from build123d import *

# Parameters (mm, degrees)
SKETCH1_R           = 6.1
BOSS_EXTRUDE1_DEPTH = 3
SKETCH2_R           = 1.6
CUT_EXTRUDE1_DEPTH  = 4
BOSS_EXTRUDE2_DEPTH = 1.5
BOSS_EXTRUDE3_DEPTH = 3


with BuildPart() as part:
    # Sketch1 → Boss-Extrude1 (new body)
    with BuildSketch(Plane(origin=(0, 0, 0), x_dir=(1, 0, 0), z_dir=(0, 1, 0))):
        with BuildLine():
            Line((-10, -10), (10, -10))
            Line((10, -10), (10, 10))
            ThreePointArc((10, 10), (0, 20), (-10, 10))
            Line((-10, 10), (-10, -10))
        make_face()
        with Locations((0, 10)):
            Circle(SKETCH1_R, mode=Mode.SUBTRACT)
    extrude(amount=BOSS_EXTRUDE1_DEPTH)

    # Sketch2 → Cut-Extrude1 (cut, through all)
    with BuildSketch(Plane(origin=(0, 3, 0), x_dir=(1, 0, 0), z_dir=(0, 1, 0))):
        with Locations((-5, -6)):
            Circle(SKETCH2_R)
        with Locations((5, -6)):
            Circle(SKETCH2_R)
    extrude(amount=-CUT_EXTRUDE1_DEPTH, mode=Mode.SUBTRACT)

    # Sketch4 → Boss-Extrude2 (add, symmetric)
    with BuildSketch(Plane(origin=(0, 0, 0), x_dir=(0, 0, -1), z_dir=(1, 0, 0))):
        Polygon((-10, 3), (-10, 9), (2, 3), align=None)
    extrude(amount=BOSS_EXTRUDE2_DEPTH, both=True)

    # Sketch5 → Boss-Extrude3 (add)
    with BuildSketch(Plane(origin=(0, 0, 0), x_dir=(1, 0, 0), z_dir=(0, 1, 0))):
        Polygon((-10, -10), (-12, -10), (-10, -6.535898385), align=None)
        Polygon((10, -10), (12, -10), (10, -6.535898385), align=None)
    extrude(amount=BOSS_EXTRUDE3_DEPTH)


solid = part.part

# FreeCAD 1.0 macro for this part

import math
import FreeCAD as App
import Part
import Sketcher
Q = App.Units.Quantity


def add_polygon(sketch, points):
    """Adds a closed chain of lines whose ends are joined by coincident constraints."""
    first, n = sketch.GeometryCount, len(points)
    for a, b in zip(points, points[1:] + points[:1]):
        sketch.addGeometry(Part.LineSegment(App.Vector(*a, 0), App.Vector(*b, 0)), False)
    for i in range(n):
        sketch.addConstraint(Sketcher.Constraint("Coincident", first + i, 2, first + (i + 1) % n, 1))

doc = App.newDocument("Part")
params = doc.addObject("Spreadsheet::Sheet", "Params")
for row, (alias, value) in enumerate([
    ("sketch1_radius", "10 mm"),
    ("sketch1_diameter", "12.2 mm"),
    ("pad1_length", "3 mm"),
    ("sketch2_diameter", "3.2 mm"),
    ("sketch3_width", "6 mm"),
    ("sketch3_height", "12 mm"),
    ("pad2_length", "3 mm"),
    ("sketch4_width", "2 mm"),
    ("pad3_length", "3 mm"),
], start=1):
    params.set(f"A{row}", alias)
    params.set(f"B{row}", "=" + value)
    params.setAlias(f"B{row}", alias)

body = doc.addObject("PartDesign::Body", "Body")

sketch1 = body.newObject("Sketcher::SketchObject", "Sketch")
sketch1.AttachmentSupport = (doc.getObject("XZ_Plane"), [""])
sketch1.MapMode = "FlatFace"
sketch1.addGeometry([
    Part.LineSegment(App.Vector(-10, 10, 0), App.Vector(10, 10, 0)),
    Part.LineSegment(App.Vector(10, 10, 0), App.Vector(10, -10, 0)),
    Part.ArcOfCircle(Part.Circle(App.Vector(0, -10, 0), App.Vector(0, 0, 1), 10), math.radians(180), math.radians(360)),
    Part.LineSegment(App.Vector(-10, -10, 0), App.Vector(-10, 10, 0)),
    Part.Circle(App.Vector(0, -10, 0), App.Vector(0, 0, 1), 6),
], False)
sketch1.addConstraint([
    Sketcher.Constraint("Coincident", 0, 2, 1, 1),
    Sketcher.Constraint("Tangent", 1, 2, 2, 2),
    Sketcher.Constraint("Tangent", 2, 1, 3, 1),
    Sketcher.Constraint("Coincident", 3, 2, 0, 1),
    Sketcher.Constraint("Horizontal", 0),
    Sketcher.Constraint("Vertical", 1),
    Sketcher.Constraint("Vertical", 3),
    Sketcher.Constraint("Coincident", 4, 3, 2, 3),
    Sketcher.Constraint("Symmetric", 0, 2, 2, 1, -1, 1),
    Sketcher.Constraint("Equal", 0, 1),
    Sketcher.Constraint("Radius", 2, 10.0),
    Sketcher.Constraint("Diameter", 4, 12.2),
])
sketch1.setExpression("Constraints[10]", "Params.sketch1_radius")
sketch1.setExpression("Constraints[11]", "Params.sketch1_diameter")
pad1 = body.newObject("PartDesign::Pad", "Pad")
pad1.Profile = sketch1
pad1.setExpression("Length", "Params.pad1_length")
pad1.Reversed = True

sketch2 = body.newObject("Sketcher::SketchObject", "Sketch001")
sketch2.AttachmentSupport = (doc.getObject("XZ_Plane"), [""])
sketch2.MapMode = "FlatFace"
sketch2.AttachmentOffset = App.Placement(App.Vector(0, 0, -3), App.Rotation())
sketch2.addGeometry([
    Part.Circle(App.Vector(-5, 6, 0), App.Vector(0, 0, 1), 1.6),
    Part.Circle(App.Vector(5, 6, 0), App.Vector(0, 0, 1), 1.6),
], False)
sketch2.addConstraint([
    Sketcher.Constraint("Equal", 0, 1),
    Sketcher.Constraint("Symmetric", 0, 3, 1, 3, -2),
    Sketcher.Constraint("Diameter", 0, 3.2),
    Sketcher.Constraint("DistanceX", 0, 3, -1, 1, 5.0),
    Sketcher.Constraint("DistanceY", -1, 1, 0, 3, 6.0),
])
sketch2.setExpression("Constraints[2]", "Params.sketch2_diameter")
pocket1 = body.newObject("PartDesign::Pocket", "Pocket")
pocket1.Profile = sketch2
pocket1.Type = "ThroughAll"
pocket1.Reversed = True

sketch3 = body.newObject("Sketcher::SketchObject", "Sketch002")
sketch3.AttachmentSupport = (doc.getObject("YZ_Plane"), [""])
sketch3.MapMode = "FlatFace"
add_polygon(sketch3, [(9, 10), (3, 10), (3, -2)])
sketch3.addConstraint([
    Sketcher.Constraint("Horizontal", 0),
    Sketcher.Constraint("Vertical", 1),
    Sketcher.Constraint("DistanceX", 0, 2, 0, 1, 6.0),
    Sketcher.Constraint("DistanceY", 1, 2, 1, 1, 12.0),
    Sketcher.Constraint("DistanceX", -1, 1, 0, 2, 3.0),
    Sketcher.Constraint("DistanceY", -1, 1, 0, 2, 10.0),
])
sketch3.setExpression("Constraints[5]", "Params.sketch3_width")
sketch3.setExpression("Constraints[6]", "Params.sketch3_height")
pad2 = body.newObject("PartDesign::Pad", "Pad001")
pad2.Profile = sketch3
pad2.setExpression("Length", "Params.pad2_length")
pad2.Midplane = True

sketch4 = body.newObject("Sketcher::SketchObject", "Sketch003")
sketch4.AttachmentSupport = (doc.getObject("XZ_Plane"), [""])
sketch4.MapMode = "FlatFace"
add_polygon(sketch4, [(-12, 10), (-10, 10), (-10, 6.5)])
add_polygon(sketch4, [(10, 10), (12, 10), (10, 6.5)])
sketch4.addConstraint([
    Sketcher.Constraint("Horizontal", 0),
    Sketcher.Constraint("Vertical", 1),
    Sketcher.Constraint("Horizontal", 3),
    Sketcher.Constraint("Vertical", 5),
    Sketcher.Constraint("Symmetric", 2, 2, 3, 2, -2),
    Sketcher.Constraint("Symmetric", 1, 2, 4, 2, -2),
    Sketcher.Constraint("DistanceX", 0, 1, 0, 2, 2.0),
    Sketcher.Constraint("Angle", 2, Q("120 deg")),
    Sketcher.Constraint("DistanceX", 0, 2, -1, 1, 10.0),
    Sketcher.Constraint("DistanceY", -1, 1, 0, 2, 10.0),
])
sketch4.setExpression("Constraints[12]", "Params.sketch4_width")
pad3 = body.newObject("PartDesign::Pad", "Pad002")
pad3.Profile = sketch4
pad3.setExpression("Length", "Params.pad3_length")
pad3.Reversed = True

doc.recompute()
